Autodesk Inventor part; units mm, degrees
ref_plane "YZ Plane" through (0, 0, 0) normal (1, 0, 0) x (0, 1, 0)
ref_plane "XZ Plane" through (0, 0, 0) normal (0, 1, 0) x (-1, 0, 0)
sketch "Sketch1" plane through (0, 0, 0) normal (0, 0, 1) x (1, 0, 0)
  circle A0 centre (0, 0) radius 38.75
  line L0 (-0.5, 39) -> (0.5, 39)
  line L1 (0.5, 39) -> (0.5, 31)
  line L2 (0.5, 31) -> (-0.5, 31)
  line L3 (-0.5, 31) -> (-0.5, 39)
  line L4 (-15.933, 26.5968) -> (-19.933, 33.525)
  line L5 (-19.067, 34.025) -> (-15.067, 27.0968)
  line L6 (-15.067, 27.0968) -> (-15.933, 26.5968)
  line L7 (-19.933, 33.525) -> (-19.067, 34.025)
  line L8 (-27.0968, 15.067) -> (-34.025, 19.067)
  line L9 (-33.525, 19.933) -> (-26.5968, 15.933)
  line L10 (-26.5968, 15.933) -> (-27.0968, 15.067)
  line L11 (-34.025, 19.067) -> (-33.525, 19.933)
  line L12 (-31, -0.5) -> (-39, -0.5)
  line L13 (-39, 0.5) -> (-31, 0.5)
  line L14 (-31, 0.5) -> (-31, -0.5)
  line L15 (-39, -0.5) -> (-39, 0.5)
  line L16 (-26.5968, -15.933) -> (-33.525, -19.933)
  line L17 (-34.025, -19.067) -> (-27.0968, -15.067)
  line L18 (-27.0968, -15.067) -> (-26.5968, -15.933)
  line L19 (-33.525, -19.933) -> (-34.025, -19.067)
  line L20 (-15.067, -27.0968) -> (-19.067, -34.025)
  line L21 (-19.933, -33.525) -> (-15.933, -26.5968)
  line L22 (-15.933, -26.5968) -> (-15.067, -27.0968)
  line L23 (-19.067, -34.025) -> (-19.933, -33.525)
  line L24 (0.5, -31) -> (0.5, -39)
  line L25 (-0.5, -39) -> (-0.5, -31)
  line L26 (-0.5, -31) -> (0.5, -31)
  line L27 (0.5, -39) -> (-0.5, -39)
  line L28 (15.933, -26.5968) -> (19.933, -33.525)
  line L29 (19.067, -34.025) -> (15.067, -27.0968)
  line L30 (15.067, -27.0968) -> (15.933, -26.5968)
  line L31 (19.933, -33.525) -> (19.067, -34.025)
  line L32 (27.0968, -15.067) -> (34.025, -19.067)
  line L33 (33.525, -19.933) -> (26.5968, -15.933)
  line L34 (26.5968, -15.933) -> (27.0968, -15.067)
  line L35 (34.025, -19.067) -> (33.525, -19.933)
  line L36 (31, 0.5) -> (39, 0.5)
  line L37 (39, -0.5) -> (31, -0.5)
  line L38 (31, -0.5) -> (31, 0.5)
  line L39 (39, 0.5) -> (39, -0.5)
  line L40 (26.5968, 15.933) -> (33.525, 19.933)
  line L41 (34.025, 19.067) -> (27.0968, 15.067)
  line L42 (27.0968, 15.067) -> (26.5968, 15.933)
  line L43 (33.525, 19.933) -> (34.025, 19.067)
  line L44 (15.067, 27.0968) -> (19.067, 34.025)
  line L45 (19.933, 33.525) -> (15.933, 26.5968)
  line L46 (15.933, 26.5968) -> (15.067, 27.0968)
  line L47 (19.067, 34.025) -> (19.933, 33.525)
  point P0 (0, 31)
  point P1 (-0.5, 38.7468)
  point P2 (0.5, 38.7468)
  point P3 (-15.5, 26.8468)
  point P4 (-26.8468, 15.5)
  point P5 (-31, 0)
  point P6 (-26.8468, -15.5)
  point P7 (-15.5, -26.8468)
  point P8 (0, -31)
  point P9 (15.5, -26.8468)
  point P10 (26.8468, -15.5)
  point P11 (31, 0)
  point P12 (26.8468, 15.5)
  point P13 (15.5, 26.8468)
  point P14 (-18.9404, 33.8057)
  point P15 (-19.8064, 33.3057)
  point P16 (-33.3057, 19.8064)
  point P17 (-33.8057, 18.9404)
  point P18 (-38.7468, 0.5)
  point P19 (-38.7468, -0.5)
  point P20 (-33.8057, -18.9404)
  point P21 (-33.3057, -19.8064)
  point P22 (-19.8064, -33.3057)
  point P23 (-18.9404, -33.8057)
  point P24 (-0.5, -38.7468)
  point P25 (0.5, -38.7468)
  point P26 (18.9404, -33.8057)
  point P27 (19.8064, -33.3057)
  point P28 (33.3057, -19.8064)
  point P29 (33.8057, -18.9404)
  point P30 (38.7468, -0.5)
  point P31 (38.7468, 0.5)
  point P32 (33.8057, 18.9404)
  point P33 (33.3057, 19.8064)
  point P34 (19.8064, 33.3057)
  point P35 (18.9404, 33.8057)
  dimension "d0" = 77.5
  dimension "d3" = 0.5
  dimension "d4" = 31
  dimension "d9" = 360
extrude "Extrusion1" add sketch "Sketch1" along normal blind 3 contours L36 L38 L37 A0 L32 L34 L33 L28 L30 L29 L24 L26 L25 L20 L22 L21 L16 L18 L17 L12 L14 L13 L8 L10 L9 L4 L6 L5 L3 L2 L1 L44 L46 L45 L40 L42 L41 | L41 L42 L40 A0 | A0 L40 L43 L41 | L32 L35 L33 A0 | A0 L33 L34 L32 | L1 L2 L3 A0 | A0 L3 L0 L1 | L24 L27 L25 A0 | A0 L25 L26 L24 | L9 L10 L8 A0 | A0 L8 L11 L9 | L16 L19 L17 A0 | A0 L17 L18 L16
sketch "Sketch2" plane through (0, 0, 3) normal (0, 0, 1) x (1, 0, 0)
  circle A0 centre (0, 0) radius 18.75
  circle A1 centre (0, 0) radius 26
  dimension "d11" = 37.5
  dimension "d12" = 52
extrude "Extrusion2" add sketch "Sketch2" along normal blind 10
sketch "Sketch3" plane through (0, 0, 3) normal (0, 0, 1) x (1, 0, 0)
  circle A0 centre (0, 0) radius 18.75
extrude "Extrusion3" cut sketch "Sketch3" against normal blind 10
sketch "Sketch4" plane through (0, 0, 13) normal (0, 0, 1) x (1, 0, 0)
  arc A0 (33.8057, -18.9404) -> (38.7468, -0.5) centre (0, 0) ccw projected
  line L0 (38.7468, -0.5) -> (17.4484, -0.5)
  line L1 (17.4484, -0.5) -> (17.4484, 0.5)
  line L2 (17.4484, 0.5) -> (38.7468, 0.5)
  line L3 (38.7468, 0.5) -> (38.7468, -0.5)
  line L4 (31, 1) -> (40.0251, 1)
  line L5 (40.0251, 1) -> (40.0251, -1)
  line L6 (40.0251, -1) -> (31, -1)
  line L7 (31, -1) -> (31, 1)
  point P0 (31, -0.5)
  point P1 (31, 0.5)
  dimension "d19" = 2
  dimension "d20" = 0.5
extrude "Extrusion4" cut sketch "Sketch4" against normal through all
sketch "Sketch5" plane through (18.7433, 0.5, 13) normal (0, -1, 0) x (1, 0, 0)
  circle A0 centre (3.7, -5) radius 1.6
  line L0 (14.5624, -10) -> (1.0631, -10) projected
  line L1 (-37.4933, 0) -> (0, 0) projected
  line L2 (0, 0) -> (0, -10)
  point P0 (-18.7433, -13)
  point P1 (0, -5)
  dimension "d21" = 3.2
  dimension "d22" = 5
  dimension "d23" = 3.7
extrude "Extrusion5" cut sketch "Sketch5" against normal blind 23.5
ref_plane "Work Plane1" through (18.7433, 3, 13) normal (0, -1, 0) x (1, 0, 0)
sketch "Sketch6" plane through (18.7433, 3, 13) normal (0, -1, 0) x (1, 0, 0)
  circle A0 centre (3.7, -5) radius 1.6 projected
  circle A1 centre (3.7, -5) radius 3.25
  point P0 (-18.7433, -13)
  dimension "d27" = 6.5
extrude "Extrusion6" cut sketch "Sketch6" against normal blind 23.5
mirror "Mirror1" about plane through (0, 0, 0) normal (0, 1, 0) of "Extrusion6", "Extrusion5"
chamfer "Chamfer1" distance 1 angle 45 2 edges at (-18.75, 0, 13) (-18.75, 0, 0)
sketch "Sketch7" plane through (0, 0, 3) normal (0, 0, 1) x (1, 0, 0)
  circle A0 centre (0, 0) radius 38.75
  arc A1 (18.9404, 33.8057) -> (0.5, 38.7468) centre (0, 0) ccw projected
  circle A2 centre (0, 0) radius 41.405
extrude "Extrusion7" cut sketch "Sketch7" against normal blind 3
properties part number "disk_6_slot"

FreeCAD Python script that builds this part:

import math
import FreeCAD as App
import Part
import Sketcher
Q = App.Units.Quantity


def edges_at(feature, points):
    """Names of the edges that pass closest to the given points."""
    edges = feature.Shape.Edges
    near = lambda p: min(range(len(edges)), key=lambda i: edges[i].distToShape(Part.Vertex(*p))[0])
    return sorted({f"Edge{near(p) + 1}" for p in points})

doc = App.newDocument("Part")
body = doc.addObject("PartDesign::Body", "Body")

sketch1 = body.newObject("Sketcher::SketchObject", "Sketch")
sketch1.AttachmentSupport = (doc.getObject("XY_Plane"), [""])
sketch1.MapMode = "FlatFace"
sketch1.addGeometry(Part.LineSegment(App.Vector(31, 0.5, 0), App.Vector(38.746774, 0.5, 0)), False)
sketch1.addGeometry(Part.ArcOfCircle(Part.Circle(App.Vector(0, 0, 0), App.Vector(0, 0, 1), 38.75), math.radians(0.739321), math.radians(29.260688)), False)
sketch1.addGeometry(Part.LineSegment(App.Vector(33.805688, 18.94038, 0), App.Vector(34.025, 19.067, 0)), False)
sketch1.addGeometry(Part.LineSegment(App.Vector(34.025, 19.067, 0), App.Vector(33.525, 19.933, 0)), False)
sketch1.addGeometry(Part.LineSegment(App.Vector(33.525, 19.933, 0), App.Vector(33.305699, 19.806386, 0)), False)
sketch1.addGeometry(Part.ArcOfCircle(Part.Circle(App.Vector(0, 0, 0), App.Vector(0, 0, 1), 38.75), math.radians(30.739298), math.radians(59.260702)), False)
sketch1.addGeometry(Part.LineSegment(App.Vector(19.806386, 33.305699, 0), App.Vector(15.933, 26.5968, 0)), False)
sketch1.addGeometry(Part.LineSegment(App.Vector(15.933, 26.5968, 0), App.Vector(15.067, 27.0968, 0)), False)
sketch1.addGeometry(Part.LineSegment(App.Vector(15.067, 27.0968, 0), App.Vector(18.94038, 33.805688, 0)), False)
sketch1.addGeometry(Part.ArcOfCircle(Part.Circle(App.Vector(0, 0, 0), App.Vector(0, 0, 1), 38.75), math.radians(60.739312), math.radians(89.260679)), False)
sketch1.addGeometry(Part.LineSegment(App.Vector(0.5, 38.746774, 0), App.Vector(0.5, 39, 0)), False)
sketch1.addGeometry(Part.LineSegment(App.Vector(0.5, 39, 0), App.Vector(-0.5, 39, 0)), False)
sketch1.addGeometry(Part.LineSegment(App.Vector(-0.5, 39, 0), App.Vector(-0.5, 38.746774, 0)), False)
sketch1.addGeometry(Part.ArcOfCircle(Part.Circle(App.Vector(0, 0, 0), App.Vector(0, 0, 1), 38.75), math.radians(90.739321), math.radians(119.260688)), False)
sketch1.addGeometry(Part.LineSegment(App.Vector(-18.94038, 33.805688, 0), App.Vector(-15.067, 27.0968, 0)), False)
sketch1.addGeometry(Part.LineSegment(App.Vector(-15.067, 27.0968, 0), App.Vector(-15.933, 26.5968, 0)), False)
sketch1.addGeometry(Part.LineSegment(App.Vector(-15.933, 26.5968, 0), App.Vector(-19.806386, 33.305699, 0)), False)
sketch1.addGeometry(Part.ArcOfCircle(Part.Circle(App.Vector(0, 0, 0), App.Vector(0, 0, 1), 38.75), math.radians(120.739298), math.radians(149.260702)), False)
sketch1.addGeometry(Part.LineSegment(App.Vector(-33.305699, 19.806386, 0), App.Vector(-33.525, 19.933, 0)), False)
sketch1.addGeometry(Part.LineSegment(App.Vector(-33.525, 19.933, 0), App.Vector(-34.025, 19.067, 0)), False)
sketch1.addGeometry(Part.LineSegment(App.Vector(-34.025, 19.067, 0), App.Vector(-33.805688, 18.94038, 0)), False)
sketch1.addGeometry(Part.ArcOfCircle(Part.Circle(App.Vector(0, 0, 0), App.Vector(0, 0, 1), 38.75), math.radians(150.739312), math.radians(179.260679)), False)
sketch1.addGeometry(Part.LineSegment(App.Vector(-38.746774, 0.5, 0), App.Vector(-31, 0.5, 0)), False)
sketch1.addGeometry(Part.LineSegment(App.Vector(-31, 0.5, 0), App.Vector(-31, -0.5, 0)), False)
sketch1.addGeometry(Part.LineSegment(App.Vector(-31, -0.5, 0), App.Vector(-38.746774, -0.5, 0)), False)
sketch1.addGeometry(Part.ArcOfCircle(Part.Circle(App.Vector(0, 0, 0), App.Vector(0, 0, 1), 38.75), math.radians(-179.260679), math.radians(-150.739312)), False)
sketch1.addGeometry(Part.LineSegment(App.Vector(-33.805688, -18.94038, 0), App.Vector(-34.025, -19.067, 0)), False)
sketch1.addGeometry(Part.LineSegment(App.Vector(-34.025, -19.067, 0), App.Vector(-33.525, -19.933, 0)), False)
sketch1.addGeometry(Part.LineSegment(App.Vector(-33.525, -19.933, 0), App.Vector(-33.305699, -19.806386, 0)), False)
sketch1.addGeometry(Part.ArcOfCircle(Part.Circle(App.Vector(0, 0, 0), App.Vector(0, 0, 1), 38.75), math.radians(-149.260702), math.radians(-120.739298)), False)
sketch1.addGeometry(Part.LineSegment(App.Vector(-19.806386, -33.305699, 0), App.Vector(-15.933, -26.5968, 0)), False)
sketch1.addGeometry(Part.LineSegment(App.Vector(-15.933, -26.5968, 0), App.Vector(-15.067, -27.0968, 0)), False)
sketch1.addGeometry(Part.LineSegment(App.Vector(-15.067, -27.0968, 0), App.Vector(-18.94038, -33.805688, 0)), False)
sketch1.addGeometry(Part.ArcOfCircle(Part.Circle(App.Vector(0, 0, 0), App.Vector(0, 0, 1), 38.75), math.radians(-119.260688), math.radians(-90.739321)), False)
sketch1.addGeometry(Part.LineSegment(App.Vector(-0.5, -38.746774, 0), App.Vector(-0.5, -39, 0)), False)
sketch1.addGeometry(Part.LineSegment(App.Vector(-0.5, -39, 0), App.Vector(0.5, -39, 0)), False)
sketch1.addGeometry(Part.LineSegment(App.Vector(0.5, -39, 0), App.Vector(0.5, -38.746774, 0)), False)
sketch1.addGeometry(Part.ArcOfCircle(Part.Circle(App.Vector(0, 0, 0), App.Vector(0, 0, 1), 38.75), math.radians(-89.260679), math.radians(-60.739312)), False)
sketch1.addGeometry(Part.LineSegment(App.Vector(18.94038, -33.805688, 0), App.Vector(15.067, -27.0968, 0)), False)
sketch1.addGeometry(Part.LineSegment(App.Vector(15.067, -27.0968, 0), App.Vector(15.933, -26.5968, 0)), False)
sketch1.addGeometry(Part.LineSegment(App.Vector(15.933, -26.5968, 0), App.Vector(19.806386, -33.305699, 0)), False)
sketch1.addGeometry(Part.ArcOfCircle(Part.Circle(App.Vector(0, 0, 0), App.Vector(0, 0, 1), 38.75), math.radians(-59.260702), math.radians(-30.739298)), False)
sketch1.addGeometry(Part.LineSegment(App.Vector(33.305699, -19.806386, 0), App.Vector(33.525, -19.933, 0)), False)
sketch1.addGeometry(Part.LineSegment(App.Vector(33.525, -19.933, 0), App.Vector(34.025, -19.067, 0)), False)
sketch1.addGeometry(Part.LineSegment(App.Vector(34.025, -19.067, 0), App.Vector(33.805688, -18.94038, 0)), False)
sketch1.addGeometry(Part.ArcOfCircle(Part.Circle(App.Vector(0, 0, 0), App.Vector(0, 0, 1), 38.75), math.radians(-29.260688), math.radians(-0.739321)), False)
sketch1.addGeometry(Part.LineSegment(App.Vector(38.746774, -0.5, 0), App.Vector(31, -0.5, 0)), False)
sketch1.addGeometry(Part.LineSegment(App.Vector(31, -0.5, 0), App.Vector(31, 0.5, 0)), False)
sketch1.addConstraint(Sketcher.Constraint("Coincident", 0, 2, 1, 1))
sketch1.addConstraint(Sketcher.Constraint("Coincident", 1, 2, 2, 1))
sketch1.addConstraint(Sketcher.Constraint("Coincident", 2, 2, 3, 1))
sketch1.addConstraint(Sketcher.Constraint("Coincident", 3, 2, 4, 1))
sketch1.addConstraint(Sketcher.Constraint("Coincident", 4, 2, 5, 1))
sketch1.addConstraint(Sketcher.Constraint("Coincident", 5, 2, 6, 1))
sketch1.addConstraint(Sketcher.Constraint("Coincident", 6, 2, 7, 1))
sketch1.addConstraint(Sketcher.Constraint("Coincident", 7, 2, 8, 1))
sketch1.addConstraint(Sketcher.Constraint("Coincident", 8, 2, 9, 1))
sketch1.addConstraint(Sketcher.Constraint("Coincident", 9, 2, 10, 1))
sketch1.addConstraint(Sketcher.Constraint("Coincident", 10, 2, 11, 1))
sketch1.addConstraint(Sketcher.Constraint("Coincident", 11, 2, 12, 1))
sketch1.addConstraint(Sketcher.Constraint("Coincident", 12, 2, 13, 1))
sketch1.addConstraint(Sketcher.Constraint("Coincident", 13, 2, 14, 1))
sketch1.addConstraint(Sketcher.Constraint("Coincident", 14, 2, 15, 1))
sketch1.addConstraint(Sketcher.Constraint("Coincident", 15, 2, 16, 1))
sketch1.addConstraint(Sketcher.Constraint("Coincident", 16, 2, 17, 1))
sketch1.addConstraint(Sketcher.Constraint("Coincident", 17, 2, 18, 1))
sketch1.addConstraint(Sketcher.Constraint("Coincident", 18, 2, 19, 1))
sketch1.addConstraint(Sketcher.Constraint("Coincident", 19, 2, 20, 1))
sketch1.addConstraint(Sketcher.Constraint("Coincident", 20, 2, 21, 1))
sketch1.addConstraint(Sketcher.Constraint("Coincident", 21, 2, 22, 1))
sketch1.addConstraint(Sketcher.Constraint("Coincident", 22, 2, 23, 1))
sketch1.addConstraint(Sketcher.Constraint("Coincident", 23, 2, 24, 1))
sketch1.addConstraint(Sketcher.Constraint("Coincident", 24, 2, 25, 1))
sketch1.addConstraint(Sketcher.Constraint("Coincident", 25, 2, 26, 1))
sketch1.addConstraint(Sketcher.Constraint("Coincident", 26, 2, 27, 1))
sketch1.addConstraint(Sketcher.Constraint("Coincident", 27, 2, 28, 1))
sketch1.addConstraint(Sketcher.Constraint("Coincident", 28, 2, 29, 1))
sketch1.addConstraint(Sketcher.Constraint("Coincident", 29, 2, 30, 1))
sketch1.addConstraint(Sketcher.Constraint("Coincident", 30, 2, 31, 1))
sketch1.addConstraint(Sketcher.Constraint("Coincident", 31, 2, 32, 1))
sketch1.addConstraint(Sketcher.Constraint("Coincident", 32, 2, 33, 1))
sketch1.addConstraint(Sketcher.Constraint("Coincident", 33, 2, 34, 1))
sketch1.addConstraint(Sketcher.Constraint("Coincident", 34, 2, 35, 1))
sketch1.addConstraint(Sketcher.Constraint("Coincident", 35, 2, 36, 1))
sketch1.addConstraint(Sketcher.Constraint("Coincident", 36, 2, 37, 1))
sketch1.addConstraint(Sketcher.Constraint("Coincident", 37, 2, 38, 1))
sketch1.addConstraint(Sketcher.Constraint("Coincident", 38, 2, 39, 1))
sketch1.addConstraint(Sketcher.Constraint("Coincident", 39, 2, 40, 1))
sketch1.addConstraint(Sketcher.Constraint("Coincident", 40, 2, 41, 1))
sketch1.addConstraint(Sketcher.Constraint("Coincident", 41, 2, 42, 1))
sketch1.addConstraint(Sketcher.Constraint("Coincident", 42, 2, 43, 1))
sketch1.addConstraint(Sketcher.Constraint("Coincident", 43, 2, 44, 1))
sketch1.addConstraint(Sketcher.Constraint("Coincident", 44, 2, 45, 1))
sketch1.addConstraint(Sketcher.Constraint("Coincident", 45, 2, 46, 1))
sketch1.addConstraint(Sketcher.Constraint("Coincident", 46, 2, 47, 1))
sketch1.addConstraint(Sketcher.Constraint("Coincident", 47, 2, 0, 1))
sketch1.addConstraint(Sketcher.Constraint("Horizontal", 0))
sketch1.addConstraint(Sketcher.Constraint("Vertical", 10))
sketch1.addConstraint(Sketcher.Constraint("Horizontal", 11))
sketch1.addConstraint(Sketcher.Constraint("Vertical", 12))
sketch1.addConstraint(Sketcher.Constraint("Horizontal", 22))
sketch1.addConstraint(Sketcher.Constraint("Vertical", 23))
sketch1.addConstraint(Sketcher.Constraint("Horizontal", 24))
sketch1.addConstraint(Sketcher.Constraint("Vertical", 34))
sketch1.addConstraint(Sketcher.Constraint("Horizontal", 35))
sketch1.addConstraint(Sketcher.Constraint("Vertical", 36))
sketch1.addConstraint(Sketcher.Constraint("Horizontal", 46))
sketch1.addConstraint(Sketcher.Constraint("Vertical", 47))
sketch1.addConstraint(Sketcher.Constraint("Coincident", 1, 3, -1, 1))
sketch1.addConstraint(Sketcher.Constraint("Coincident", 5, 3, -1, 1))
sketch1.addConstraint(Sketcher.Constraint("Coincident", 9, 3, -1, 1))
sketch1.addConstraint(Sketcher.Constraint("Coincident", 13, 3, -1, 1))
sketch1.addConstraint(Sketcher.Constraint("Coincident", 17, 3, -1, 1))
sketch1.addConstraint(Sketcher.Constraint("Coincident", 21, 3, -1, 1))
sketch1.addConstraint(Sketcher.Constraint("Coincident", 25, 3, -1, 1))
sketch1.addConstraint(Sketcher.Constraint("Coincident", 29, 3, -1, 1))
sketch1.addConstraint(Sketcher.Constraint("Coincident", 33, 3, -1, 1))
sketch1.addConstraint(Sketcher.Constraint("Coincident", 37, 3, -1, 1))
sketch1.addConstraint(Sketcher.Constraint("Coincident", 41, 3, -1, 1))
sketch1.addConstraint(Sketcher.Constraint("Coincident", 45, 3, -1, 1))
sketch1.addConstraint(Sketcher.Constraint("Equal", 1, 5))
sketch1.addConstraint(Sketcher.Constraint("Equal", 5, 9))
sketch1.addConstraint(Sketcher.Constraint("Equal", 9, 13))
sketch1.addConstraint(Sketcher.Constraint("Equal", 13, 17))
sketch1.addConstraint(Sketcher.Constraint("Equal", 17, 21))
sketch1.addConstraint(Sketcher.Constraint("Equal", 21, 25))
sketch1.addConstraint(Sketcher.Constraint("Equal", 25, 29))
sketch1.addConstraint(Sketcher.Constraint("Equal", 29, 33))
sketch1.addConstraint(Sketcher.Constraint("Equal", 33, 37))
sketch1.addConstraint(Sketcher.Constraint("Equal", 37, 41))
sketch1.addConstraint(Sketcher.Constraint("Equal", 41, 45))
sketch1.addConstraint(Sketcher.Constraint("Symmetric", 2, 2, 26, 2, -1, 1))
sketch1.addConstraint(Sketcher.Constraint("Symmetric", 3, 2, 27, 2, -1, 1))
sketch1.addConstraint(Sketcher.Constraint("Symmetric", 6, 2, 30, 2, -1, 1))
sketch1.addConstraint(Sketcher.Constraint("Symmetric", 7, 2, 31, 2, -1, 1))
sketch1.addConstraint(Sketcher.Constraint("Symmetric", 10, 2, 34, 2, -1, 1))
sketch1.addConstraint(Sketcher.Constraint("Symmetric", 14, 2, 38, 2, -1, 1))
sketch1.addConstraint(Sketcher.Constraint("Symmetric", 15, 2, 39, 2, -1, 1))
sketch1.addConstraint(Sketcher.Constraint("Symmetric", 18, 2, 42, 2, -1, 1))
sketch1.addConstraint(Sketcher.Constraint("Symmetric", 19, 2, 43, 2, -1, 1))
sketch1.addConstraint(Sketcher.Constraint("Symmetric", 22, 2, 46, 2, -1, 1))
sketch1.addConstraint(Sketcher.Constraint("Symmetric", 7, 2, 14, 2, -2))
sketch1.addConstraint(Sketcher.Constraint("Symmetric", 6, 2, 15, 2, -2))
sketch1.addConstraint(Sketcher.Constraint("Symmetric", 3, 2, 18, 2, -2))
sketch1.addConstraint(Sketcher.Constraint("Symmetric", 2, 2, 19, 2, -2))
sketch1.addConstraint(Sketcher.Constraint("Perpendicular", 2, 3))
sketch1.addConstraint(Sketcher.Constraint("Perpendicular", 3, 4))
sketch1.addConstraint(Sketcher.Constraint("Perpendicular", 6, 7))
sketch1.addConstraint(Sketcher.Constraint("Perpendicular", 7, 8))
sketch1.addConstraint(Sketcher.Constraint("Perpendicular", 4, 14))
sketch1.addConstraint(Sketcher.Constraint("Perpendicular", 14, 15))
sketch1.addConstraint(Sketcher.Constraint("Perpendicular", 15, 16))
sketch1.addConstraint(Sketcher.Constraint("Perpendicular", 8, 18))
sketch1.addConstraint(Sketcher.Constraint("Perpendicular", 19, 20))
sketch1.addConstraint(Sketcher.Constraint("Perpendicular", 16, 26))
sketch1.addConstraint(Sketcher.Constraint("Perpendicular", 27, 28))
sketch1.addConstraint(Sketcher.Constraint("Perpendicular", 20, 30))
sketch1.addConstraint(Sketcher.Constraint("Perpendicular", 31, 32))
sketch1.addConstraint(Sketcher.Constraint("Perpendicular", 28, 38))
sketch1.addConstraint(Sketcher.Constraint("Perpendicular", 39, 40))
sketch1.addConstraint(Sketcher.Constraint("Perpendicular", 32, 42))
sketch1.addConstraint(Sketcher.Constraint("Perpendicular", 43, 44))
sketch1.addConstraint(Sketcher.Constraint("Horizontal", 9, 2, 12, 2))
sketch1.addConstraint(Sketcher.Constraint("Horizontal", 0, 2, 21, 2))
sketch1.addConstraint(Sketcher.Constraint("Horizontal", 33, 2, 36, 2))
sketch1.addConstraint(Sketcher.Constraint("Horizontal", 24, 2, 45, 2))
sketch1.addConstraint(Sketcher.Constraint("Equal", 35, 23))
sketch1.addConstraint(Sketcher.Constraint("Equal", 2, 4))
sketch1.addConstraint(Sketcher.Constraint("Equal", 3, 7))
sketch1.addConstraint(Sketcher.Constraint("Equal", 6, 8))
sketch1.addConstraint(Sketcher.Constraint("Radius", 1, 38.75))
sketch1.addConstraint(Sketcher.Constraint("DistanceX", 22, 2, -1, 1, 31.0))
sketch1.addConstraint(Sketcher.Constraint("DistanceY", -1, 1, 0, 2, 0.5))
sketch1.addConstraint(Sketcher.Constraint("DistanceX", 3, 2, 2, 2, 0.5))
sketch1.addConstraint(Sketcher.Constraint("Angle", 3, Q("120.0007 deg")))
sketch1.addConstraint(Sketcher.Constraint("DistanceY", -1, 1, 10, 2, 39.0))
sketch1.addConstraint(Sketcher.Constraint("DistanceY", 7, 2, 9, 2, 11.65))
sketch1.addConstraint(Sketcher.Constraint("DistanceX", -1, 1, 2, 2, 34.025))
pad1 = body.newObject("PartDesign::Pad", "Pad")
pad1.Profile = sketch1
pad1.Length = 3

sketch2 = body.newObject("Sketcher::SketchObject", "Sketch001")
sketch2.AttachmentSupport = (doc.getObject("XY_Plane"), [""])
sketch2.MapMode = "FlatFace"
sketch2.AttachmentOffset = App.Placement(App.Vector(0, 0, 3), App.Rotation())
sketch2.addGeometry(Part.Circle(App.Vector(0, 0, 0), App.Vector(0, 0, 1), 26), False)
sketch2.addGeometry(Part.Circle(App.Vector(0, 0, 0), App.Vector(0, 0, 1), 18.75), False)
sketch2.addConstraint(Sketcher.Constraint("Coincident", 0, 3, -1, 1))
sketch2.addConstraint(Sketcher.Constraint("Coincident", 1, 3, -1, 1))
sketch2.addConstraint(Sketcher.Constraint("Diameter", 0, 52.0))
sketch2.addConstraint(Sketcher.Constraint("Diameter", 1, 37.5))
pad2 = body.newObject("PartDesign::Pad", "Pad001")
pad2.Profile = sketch2
pad2.Length = 10

sketch3 = body.newObject("Sketcher::SketchObject", "Sketch002")
sketch3.AttachmentSupport = (doc.getObject("XY_Plane"), [""])
sketch3.MapMode = "FlatFace"
sketch3.AttachmentOffset = App.Placement(App.Vector(0, 0, 3), App.Rotation())
sketch3.addGeometry(Part.Circle(App.Vector(0, 0, 0), App.Vector(0, 0, 1), 18.75), False)
sketch3.addConstraint(Sketcher.Constraint("Coincident", 0, 3, -1, 1))
sketch3.addConstraint(Sketcher.Constraint("Diameter", 0, 37.5))
pocket1 = body.newObject("PartDesign::Pocket", "Pocket")
pocket1.Profile = sketch3
pocket1.Length = 10

sketch4 = body.newObject("Sketcher::SketchObject", "Sketch003")
sketch4.AttachmentSupport = (doc.getObject("XY_Plane"), [""])
sketch4.MapMode = "FlatFace"
sketch4.AttachmentOffset = App.Placement(App.Vector(0, 0, 13), App.Rotation())
sketch4.addGeometry(Part.LineSegment(App.Vector(31, -1, 0), App.Vector(40.0251, -1, 0)), False)
sketch4.addGeometry(Part.LineSegment(App.Vector(40.0251, -1, 0), App.Vector(40.0251, 1, 0)), False)
sketch4.addGeometry(Part.LineSegment(App.Vector(40.0251, 1, 0), App.Vector(31, 1, 0)), False)
sketch4.addGeometry(Part.LineSegment(App.Vector(31, 1, 0), App.Vector(31, 0.5, 0)), False)
sketch4.addGeometry(Part.LineSegment(App.Vector(31, 0.5, 0), App.Vector(17.4484, 0.5, 0)), False)
sketch4.addGeometry(Part.LineSegment(App.Vector(17.4484, 0.5, 0), App.Vector(17.4484, -0.5, 0)), False)
sketch4.addGeometry(Part.LineSegment(App.Vector(17.4484, -0.5, 0), App.Vector(31, -0.5, 0)), False)
sketch4.addGeometry(Part.LineSegment(App.Vector(31, -0.5, 0), App.Vector(31, -1, 0)), False)
sketch4.addConstraint(Sketcher.Constraint("Coincident", 0, 2, 1, 1))
sketch4.addConstraint(Sketcher.Constraint("Coincident", 1, 2, 2, 1))
sketch4.addConstraint(Sketcher.Constraint("Coincident", 2, 2, 3, 1))
sketch4.addConstraint(Sketcher.Constraint("Coincident", 3, 2, 4, 1))
sketch4.addConstraint(Sketcher.Constraint("Coincident", 4, 2, 5, 1))
sketch4.addConstraint(Sketcher.Constraint("Coincident", 5, 2, 6, 1))
sketch4.addConstraint(Sketcher.Constraint("Coincident", 6, 2, 7, 1))
sketch4.addConstraint(Sketcher.Constraint("Coincident", 7, 2, 0, 1))
sketch4.addConstraint(Sketcher.Constraint("Horizontal", 0))
sketch4.addConstraint(Sketcher.Constraint("Vertical", 1))
sketch4.addConstraint(Sketcher.Constraint("Horizontal", 2))
sketch4.addConstraint(Sketcher.Constraint("Vertical", 3))
sketch4.addConstraint(Sketcher.Constraint("Horizontal", 4))
sketch4.addConstraint(Sketcher.Constraint("Vertical", 5))
sketch4.addConstraint(Sketcher.Constraint("Horizontal", 6))
sketch4.addConstraint(Sketcher.Constraint("Vertical", 7))
sketch4.addConstraint(Sketcher.Constraint("Symmetric", 3, 2, 6, 2, -1))
sketch4.addConstraint(Sketcher.Constraint("Equal", 3, 7))
sketch4.addConstraint(Sketcher.Constraint("DistanceY", 1, 1, 1, 2, 2.0))
sketch4.addConstraint(Sketcher.Constraint("DistanceY", 3, 2, 3, 1, 0.5))
sketch4.addConstraint(Sketcher.Constraint("DistanceX", -1, 1, 2, 2, 31.0))
sketch4.addConstraint(Sketcher.Constraint("DistanceX", 0, 1, 0, 2, 9.025))
sketch4.addConstraint(Sketcher.Constraint("DistanceX", 4, 2, 4, 1, 13.5516))
pocket2 = body.newObject("PartDesign::Pocket", "Pocket001")
pocket2.Profile = sketch4
pocket2.Type = "ThroughAll"

sketch5 = body.newObject("Sketcher::SketchObject", "Sketch004")
sketch5.AttachmentSupport = (doc.getObject("XZ_Plane"), [""])
sketch5.MapMode = "FlatFace"
sketch5.AttachmentOffset = App.Placement(App.Vector(0, 0, -0.5), App.Rotation())
sketch5.addGeometry(Part.Circle(App.Vector(22.4433, 8, 0), App.Vector(0, 0, 1), 1.6), False)
sketch5.addConstraint(Sketcher.Constraint("Diameter", 0, 3.2))
sketch5.addConstraint(Sketcher.Constraint("DistanceY", -1, 1, 0, 3, 8.0))
sketch5.addConstraint(Sketcher.Constraint("DistanceX", -1, 1, 0, 3, 22.4433))
pocket3 = body.newObject("PartDesign::Pocket", "Pocket002")
pocket3.Profile = sketch5
pocket3.Length = 23.5

sketch6 = body.newObject("Sketcher::SketchObject", "Sketch005")
sketch6.AttachmentSupport = (doc.getObject("XZ_Plane"), [""])
sketch6.MapMode = "FlatFace"
sketch6.AttachmentOffset = App.Placement(App.Vector(0, 0, -3), App.Rotation())
sketch6.addGeometry(Part.Circle(App.Vector(22.4433, 8, 0), App.Vector(0, 0, 1), 3.25), False)
sketch6.addGeometry(Part.Circle(App.Vector(22.4433, 8, 0), App.Vector(0, 0, 1), 1.6), False)
sketch6.addConstraint(Sketcher.Constraint("Coincident", 1, 3, 0, 3))
sketch6.addConstraint(Sketcher.Constraint("Diameter", 0, 6.5))
sketch6.addConstraint(Sketcher.Constraint("Diameter", 1, 3.2))
sketch6.addConstraint(Sketcher.Constraint("DistanceY", -1, 1, 0, 3, 8.0))
sketch6.addConstraint(Sketcher.Constraint("DistanceX", -1, 1, 0, 3, 22.4433))
pocket4 = body.newObject("PartDesign::Pocket", "Pocket003")
pocket4.Profile = sketch6
pocket4.Length = 23.5
doc.recompute()

mirrored = body.newObject("PartDesign::Mirrored", "Mirrored")
mirrored.Originals = [pocket4, pocket3]
mirrored.MirrorPlane = (doc.getObject("XZ_Plane"), [""])
body.Tip = mirrored
doc.recompute()

chamfer = body.newObject("PartDesign::Chamfer", "Chamfer")
chamfer.Base = (mirrored, edges_at(mirrored, [(-18.75, 0, 13), (-18.75, 0, 0)]))
chamfer.Size = 1

sketch7 = body.newObject("Sketcher::SketchObject", "Sketch006")
sketch7.AttachmentSupport = (doc.getObject("XY_Plane"), [""])
sketch7.MapMode = "FlatFace"
sketch7.AttachmentOffset = App.Placement(App.Vector(0, 0, 3), App.Rotation())
sketch7.addGeometry(Part.Circle(App.Vector(0, 0, 0), App.Vector(0, 0, 1), 41.405), False)
sketch7.addGeometry(Part.ArcOfCircle(Part.Circle(App.Vector(0, 0, 0), App.Vector(0, 0, 1), 38.75), math.radians(89.26068), math.radians(420.739295)), False)
sketch7.addGeometry(Part.ArcOfCircle(Part.Circle(App.Vector(0, 0, 0), App.Vector(0, 0, 1), 38.750021), math.radians(60.739295), math.radians(89.26068)), False)
sketch7.addConstraint(Sketcher.Constraint("Tangent", 1, 1, 2, 2))
sketch7.addConstraint(Sketcher.Constraint("Coincident", 2, 1, 1, 2))
sketch7.addConstraint(Sketcher.Constraint("Coincident", 0, 3, -1, 1))
sketch7.addConstraint(Sketcher.Constraint("Coincident", 1, 3, -1, 1))
sketch7.addConstraint(Sketcher.Constraint("Diameter", 0, 82.81))
sketch7.addConstraint(Sketcher.Constraint("Radius", 1, 38.75))
sketch7.addConstraint(Sketcher.Constraint("DistanceX", -1, 1, 1, 1, 0.5))
sketch7.addConstraint(Sketcher.Constraint("DistanceY", 2, 1, 1, 1, 4.941))
pocket5 = body.newObject("PartDesign::Pocket", "Pocket004")
pocket5.Profile = sketch7
pocket5.Length = 3

doc.recompute()
